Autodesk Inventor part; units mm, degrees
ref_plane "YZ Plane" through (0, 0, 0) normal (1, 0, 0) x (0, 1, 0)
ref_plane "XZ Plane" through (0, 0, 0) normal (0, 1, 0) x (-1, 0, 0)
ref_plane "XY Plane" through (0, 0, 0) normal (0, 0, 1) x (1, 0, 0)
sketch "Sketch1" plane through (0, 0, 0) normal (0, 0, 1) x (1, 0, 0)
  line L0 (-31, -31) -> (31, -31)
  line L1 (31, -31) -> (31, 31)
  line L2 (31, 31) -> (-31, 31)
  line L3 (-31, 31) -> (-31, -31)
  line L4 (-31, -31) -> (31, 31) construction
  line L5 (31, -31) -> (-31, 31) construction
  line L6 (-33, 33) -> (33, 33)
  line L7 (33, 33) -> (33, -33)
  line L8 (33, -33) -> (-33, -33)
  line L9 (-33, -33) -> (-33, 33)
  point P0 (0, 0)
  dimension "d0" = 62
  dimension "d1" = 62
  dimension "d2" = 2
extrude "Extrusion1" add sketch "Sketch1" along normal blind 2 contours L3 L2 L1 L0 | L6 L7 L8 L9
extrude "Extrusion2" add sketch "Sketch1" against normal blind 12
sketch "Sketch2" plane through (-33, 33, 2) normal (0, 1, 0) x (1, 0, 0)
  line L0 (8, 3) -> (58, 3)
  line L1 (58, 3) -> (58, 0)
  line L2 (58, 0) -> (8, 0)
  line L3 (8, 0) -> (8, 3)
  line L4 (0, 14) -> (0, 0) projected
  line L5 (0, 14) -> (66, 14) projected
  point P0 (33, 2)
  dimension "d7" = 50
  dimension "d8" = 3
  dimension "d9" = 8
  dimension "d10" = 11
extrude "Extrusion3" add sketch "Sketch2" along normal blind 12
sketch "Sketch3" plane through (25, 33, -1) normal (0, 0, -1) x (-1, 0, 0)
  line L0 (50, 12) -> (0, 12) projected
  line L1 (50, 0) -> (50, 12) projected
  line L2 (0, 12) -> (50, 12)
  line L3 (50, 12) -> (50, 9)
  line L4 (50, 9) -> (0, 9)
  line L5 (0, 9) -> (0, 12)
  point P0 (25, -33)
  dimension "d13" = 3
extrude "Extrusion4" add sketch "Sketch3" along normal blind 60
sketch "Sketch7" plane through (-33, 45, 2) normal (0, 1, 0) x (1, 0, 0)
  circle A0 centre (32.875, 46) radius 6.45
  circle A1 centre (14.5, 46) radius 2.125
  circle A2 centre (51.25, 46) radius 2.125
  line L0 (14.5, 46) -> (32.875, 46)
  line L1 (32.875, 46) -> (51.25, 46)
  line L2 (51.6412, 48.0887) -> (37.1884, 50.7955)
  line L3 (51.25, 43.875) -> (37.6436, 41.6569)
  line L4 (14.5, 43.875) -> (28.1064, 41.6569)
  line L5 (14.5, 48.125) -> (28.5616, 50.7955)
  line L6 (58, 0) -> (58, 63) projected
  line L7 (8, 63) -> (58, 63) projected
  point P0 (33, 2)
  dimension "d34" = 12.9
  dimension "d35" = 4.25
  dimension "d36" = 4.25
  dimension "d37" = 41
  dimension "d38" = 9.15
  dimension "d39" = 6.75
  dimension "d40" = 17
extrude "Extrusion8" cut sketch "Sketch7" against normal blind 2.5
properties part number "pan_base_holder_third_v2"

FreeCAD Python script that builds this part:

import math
import FreeCAD as App
import Part
import Sketcher
from FreeCAD import Vector
Q = App.Units.Quantity


def add_polygon(sketch, points):
    """Adds a closed chain of lines whose ends are joined by coincident constraints."""
    first, n = sketch.GeometryCount, len(points)
    for a, b in zip(points, points[1:] + points[:1]):
        sketch.addGeometry(Part.LineSegment(App.Vector(*a, 0), App.Vector(*b, 0)), False)
    for i in range(n):
        sketch.addConstraint(Sketcher.Constraint("Coincident", first + i, 2, first + (i + 1) % n, 1))

doc = App.newDocument("Part")
params = doc.addObject("Spreadsheet::Sheet", "Params")
for row, (alias, value) in enumerate([
    ("sketch1_width", "66 mm"),
    ("pad1_length", "2 mm"),
    ("sketch2_width", "62 mm"),
    ("pad2_length", "12 mm"),
    ("sketch3_width", "50 mm"),
    ("sketch3_height", "3 mm"),
    ("pad3_length", "12 mm"),
    ("sketch4_height", "3 mm"),
    ("sketch4_width", "50 mm"),
    ("pad4_length", "60 mm"),
    ("sketch5_radius", "6.45 mm"),
    ("pocket1_length", "2.5 mm"),
], start=1):
    params.set(f"A{row}", alias)
    params.set(f"B{row}", "=" + value)
    params.setAlias(f"B{row}", alias)

body = doc.addObject("PartDesign::Body", "Body")

# Sketch on XY plane
sketch1 = doc.addObject("Sketcher::SketchObject", "Sketch")
body.addObject(sketch1)
sketch1.AttachmentSupport = (doc.XY_Plane, [""])
sketch1.MapMode = "FlatFace"
add_polygon(sketch1, [(33, 33), (-33, 33), (-33, -33), (33, -33)])  # lines 0-3
sketch1.addConstraint(Sketcher.Constraint("Horizontal", 0))
sketch1.addConstraint(Sketcher.Constraint("Vertical", 1))
sketch1.addConstraint(Sketcher.Constraint("Horizontal", 2))
sketch1.addConstraint(Sketcher.Constraint("Vertical", 3))
sketch1.addConstraint(Sketcher.Constraint("Symmetric", 0, 2, 2, 2, -1, 1))
sketch1.addConstraint(Sketcher.Constraint("Equal", 2, 1))
sketch1.addConstraint(Sketcher.Constraint("DistanceX", 0, 2, 0, 1, Q("66 mm")))
sketch1.setExpression("Constraints[10]", "Params.sketch1_width")
pad1 = doc.addObject("PartDesign::Pad", "Pad")
body.addObject(pad1)
pad1.Profile = sketch1
pad1.setExpression("Length", "Params.pad1_length")

# Sketch on XY plane
sketch2 = doc.addObject("Sketcher::SketchObject", "Sketch001")
body.addObject(sketch2)
sketch2.AttachmentSupport = (doc.XY_Plane, [""])
sketch2.MapMode = "FlatFace"
add_polygon(sketch2, [(33, 33), (-33, 33), (-33, -33), (33, -33)])  # lines 0-3
add_polygon(sketch2, [(31, -31), (-31, -31), (-31, 31), (31, 31)])  # lines 4-7
sketch2.addConstraint(Sketcher.Constraint("Horizontal", 0))
sketch2.addConstraint(Sketcher.Constraint("Vertical", 1))
sketch2.addConstraint(Sketcher.Constraint("Horizontal", 2))
sketch2.addConstraint(Sketcher.Constraint("Vertical", 3))
sketch2.addConstraint(Sketcher.Constraint("Horizontal", 4))
sketch2.addConstraint(Sketcher.Constraint("Vertical", 5))
sketch2.addConstraint(Sketcher.Constraint("Horizontal", 6))
sketch2.addConstraint(Sketcher.Constraint("Vertical", 7))
sketch2.addConstraint(Sketcher.Constraint("Symmetric", 0, 2, 2, 2, -1, 1))
sketch2.addConstraint(Sketcher.Constraint("Symmetric", 4, 2, 6, 2, -1, 1))
sketch2.addConstraint(Sketcher.Constraint("Equal", 2, 1))
sketch2.addConstraint(Sketcher.Constraint("Equal", 6, 5))
sketch2.addConstraint(Sketcher.Constraint("DistanceX", 4, 2, 4, 1, Q("62 mm")))
sketch2.addConstraint(Sketcher.Constraint("DistanceX", 1, 2, 4, 2, Q("2 mm")))
sketch2.setExpression("Constraints[20]", "Params.sketch2_width")
pad2 = doc.addObject("PartDesign::Pad", "Pad001")
body.addObject(pad2)
pad2.Profile = sketch2
pad2.setExpression("Length", "Params.pad2_length")
pad2.Reversed = True

# Sketch on XZ plane
sketch3 = doc.addObject("Sketcher::SketchObject", "Sketch002")
body.addObject(sketch3)
sketch3.AttachmentSupport = (doc.XZ_Plane, [""])
sketch3.MapMode = "FlatFace"
sketch3.AttachmentOffset = App.Placement(Vector(0, 0, -33), App.Rotation())
add_polygon(sketch3, [(25, -1), (-25, -1), (-25, 2), (25, 2)])  # lines 0-3
sketch3.addConstraint(Sketcher.Constraint("Horizontal", 0))
sketch3.addConstraint(Sketcher.Constraint("Vertical", 1))
sketch3.addConstraint(Sketcher.Constraint("Horizontal", 2))
sketch3.addConstraint(Sketcher.Constraint("Vertical", 3))
sketch3.addConstraint(Sketcher.Constraint("DistanceX", 0, 2, 0, 1, Q("50 mm")))
sketch3.addConstraint(Sketcher.Constraint("DistanceY", 1, 1, 1, 2, Q("3 mm")))
sketch3.addConstraint(Sketcher.Constraint("DistanceX", 0, 2, -1, 1, Q("25 mm")))
sketch3.addConstraint(Sketcher.Constraint("DistanceY", 0, 2, -1, 1, Q("1 mm")))
sketch3.setExpression("Constraints[8]", "Params.sketch3_width")
sketch3.setExpression("Constraints[9]", "Params.sketch3_height")
pad3 = doc.addObject("PartDesign::Pad", "Pad002")
body.addObject(pad3)
pad3.Profile = sketch3
pad3.setExpression("Length", "Params.pad3_length")
pad3.Reversed = True

# Sketch on XY plane
sketch4 = doc.addObject("Sketcher::SketchObject", "Sketch003")
body.addObject(sketch4)
sketch4.AttachmentSupport = (doc.XY_Plane, [""])
sketch4.MapMode = "FlatFace"
sketch4.AttachmentOffset = App.Placement(Vector(0, 0, -1), App.Rotation())
add_polygon(sketch4, [(-25, 42), (-25, 45), (25, 45), (25, 42)])  # lines 0-3
sketch4.addConstraint(Sketcher.Constraint("Vertical", 0))
sketch4.addConstraint(Sketcher.Constraint("Horizontal", 1))
sketch4.addConstraint(Sketcher.Constraint("Vertical", 2))
sketch4.addConstraint(Sketcher.Constraint("Horizontal", 3))
sketch4.addConstraint(Sketcher.Constraint("DistanceY", 0, 1, 0, 2, Q("3 mm")))
sketch4.addConstraint(Sketcher.Constraint("DistanceX", 1, 1, 1, 2, Q("50 mm")))
sketch4.addConstraint(Sketcher.Constraint("DistanceX", 0, 2, -1, 1, Q("25 mm")))
sketch4.addConstraint(Sketcher.Constraint("DistanceY", -1, 1, 0, 2, Q("45 mm")))
sketch4.setExpression("Constraints[8]", "Params.sketch4_height")
sketch4.setExpression("Constraints[9]", "Params.sketch4_width")
pad4 = doc.addObject("PartDesign::Pad", "Pad003")
body.addObject(pad4)
pad4.Profile = sketch4
pad4.setExpression("Length", "Params.pad4_length")
pad4.Reversed = True

# Sketch on XZ plane
sketch5 = doc.addObject("Sketcher::SketchObject", "Sketch004")
body.addObject(sketch5)
sketch5.AttachmentSupport = (doc.XZ_Plane, [""])
sketch5.MapMode = "FlatFace"
sketch5.AttachmentOffset = App.Placement(Vector(0, 0, -45), App.Rotation())
sketch5.addGeometry(Part.ArcOfCircle(Part.Circle(Vector(-0.125, -44, 0), Vector(0, 0, 1), 6.45), math.radians(-131.970375), math.radians(-48.029625)), False)
sketch5.addGeometry(Part.LineSegment(Vector(-4.4384, -48.7955, 0), Vector(-18.5, -46.125, 0)), False)
sketch5.addGeometry(Part.ArcOfCircle(Part.Circle(Vector(-18.5, -44, 0), Vector(0, 0, 1), 2.125), math.radians(90), math.radians(270)), False)
sketch5.addGeometry(Part.LineSegment(Vector(-18.5, -41.875, 0), Vector(-4.8936, -39.6569, 0)), False)
sketch5.addGeometry(Part.ArcOfCircle(Part.Circle(Vector(-0.125, -44, 0), Vector(0, 0, 1), 6.45), math.radians(42.326333), math.radians(137.673667)), False)
sketch5.addGeometry(Part.LineSegment(Vector(4.6436, -39.6569, 0), Vector(18.25, -41.875, 0)), False)
sketch5.addGeometry(Part.ArcOfCircle(Part.Circle(Vector(18.25, -44, 0), Vector(0, 0, 1), 2.125), math.radians(-79.391773), math.radians(90)), False)
sketch5.addGeometry(Part.LineSegment(Vector(18.6412, -46.0887, 0), Vector(4.1884, -48.7955, 0)), False)
sketch5.addConstraint(Sketcher.Constraint("Coincident", 0, 1, 1, 1))
sketch5.addConstraint(Sketcher.Constraint("Coincident", 1, 2, 2, 2))
sketch5.addConstraint(Sketcher.Constraint("Coincident", 2, 1, 3, 1))
sketch5.addConstraint(Sketcher.Constraint("Coincident", 3, 2, 4, 2))
sketch5.addConstraint(Sketcher.Constraint("Coincident", 4, 1, 5, 1))
sketch5.addConstraint(Sketcher.Constraint("Coincident", 5, 2, 6, 2))
sketch5.addConstraint(Sketcher.Constraint("Tangent", 6, 1, 7, 1))
sketch5.addConstraint(Sketcher.Constraint("Coincident", 7, 2, 0, 2))
sketch5.addConstraint(Sketcher.Constraint("Coincident", 4, 3, 0, 3))
sketch5.addConstraint(Sketcher.Constraint("Equal", 0, 4))
sketch5.addConstraint(Sketcher.Constraint("Equal", 2, 6))
sketch5.addConstraint(Sketcher.Constraint("Horizontal", 0, 3, 2, 3))
sketch5.addConstraint(Sketcher.Constraint("Horizontal", 4, 3, 6, 3))
sketch5.addConstraint(Sketcher.Constraint("Horizontal", 3, 2, 4, 1))
sketch5.addConstraint(Sketcher.Constraint("Horizontal", 0, 1, 7, 2))
sketch5.addConstraint(Sketcher.Constraint("Vertical", 2, 3, 1, 2))
sketch5.addConstraint(Sketcher.Constraint("Vertical", 1, 2, 2, 1))
sketch5.addConstraint(Sketcher.Constraint("Vertical", 6, 3, 5, 2))
sketch5.addConstraint(Sketcher.Constraint("Equal", 3, 5))
sketch5.addConstraint(Sketcher.Constraint("Radius", 0, Q("6.45 mm")))
sketch5.addConstraint(Sketcher.Constraint("Radius", 2, Q("2.125 mm")))
sketch5.addConstraint(Sketcher.Constraint("DistanceY", 0, 3, -1, 1, Q("44 mm")))
sketch5.addConstraint(Sketcher.Constraint("DistanceX", 2, 3, -1, 1, Q("18.5 mm")))
sketch5.addConstraint(Sketcher.Constraint("Angle", 3, Q("9.2588 deg")))
sketch5.addConstraint(Sketcher.Constraint("DistanceX", -1, 1, 6, 3, Q("18.25 mm")))
sketch5.addConstraint(Sketcher.Constraint("Distance", 1, Q("14.313 mm")))
sketch5.setExpression("Constraints[19]", "Params.sketch5_radius")
pocket1 = doc.addObject("PartDesign::Pocket", "Pocket")
body.addObject(pocket1)
pocket1.Profile = sketch5
pocket1.setExpression("Length", "Params.pocket1_length")
pocket1.Reversed = True

doc.recompute()
